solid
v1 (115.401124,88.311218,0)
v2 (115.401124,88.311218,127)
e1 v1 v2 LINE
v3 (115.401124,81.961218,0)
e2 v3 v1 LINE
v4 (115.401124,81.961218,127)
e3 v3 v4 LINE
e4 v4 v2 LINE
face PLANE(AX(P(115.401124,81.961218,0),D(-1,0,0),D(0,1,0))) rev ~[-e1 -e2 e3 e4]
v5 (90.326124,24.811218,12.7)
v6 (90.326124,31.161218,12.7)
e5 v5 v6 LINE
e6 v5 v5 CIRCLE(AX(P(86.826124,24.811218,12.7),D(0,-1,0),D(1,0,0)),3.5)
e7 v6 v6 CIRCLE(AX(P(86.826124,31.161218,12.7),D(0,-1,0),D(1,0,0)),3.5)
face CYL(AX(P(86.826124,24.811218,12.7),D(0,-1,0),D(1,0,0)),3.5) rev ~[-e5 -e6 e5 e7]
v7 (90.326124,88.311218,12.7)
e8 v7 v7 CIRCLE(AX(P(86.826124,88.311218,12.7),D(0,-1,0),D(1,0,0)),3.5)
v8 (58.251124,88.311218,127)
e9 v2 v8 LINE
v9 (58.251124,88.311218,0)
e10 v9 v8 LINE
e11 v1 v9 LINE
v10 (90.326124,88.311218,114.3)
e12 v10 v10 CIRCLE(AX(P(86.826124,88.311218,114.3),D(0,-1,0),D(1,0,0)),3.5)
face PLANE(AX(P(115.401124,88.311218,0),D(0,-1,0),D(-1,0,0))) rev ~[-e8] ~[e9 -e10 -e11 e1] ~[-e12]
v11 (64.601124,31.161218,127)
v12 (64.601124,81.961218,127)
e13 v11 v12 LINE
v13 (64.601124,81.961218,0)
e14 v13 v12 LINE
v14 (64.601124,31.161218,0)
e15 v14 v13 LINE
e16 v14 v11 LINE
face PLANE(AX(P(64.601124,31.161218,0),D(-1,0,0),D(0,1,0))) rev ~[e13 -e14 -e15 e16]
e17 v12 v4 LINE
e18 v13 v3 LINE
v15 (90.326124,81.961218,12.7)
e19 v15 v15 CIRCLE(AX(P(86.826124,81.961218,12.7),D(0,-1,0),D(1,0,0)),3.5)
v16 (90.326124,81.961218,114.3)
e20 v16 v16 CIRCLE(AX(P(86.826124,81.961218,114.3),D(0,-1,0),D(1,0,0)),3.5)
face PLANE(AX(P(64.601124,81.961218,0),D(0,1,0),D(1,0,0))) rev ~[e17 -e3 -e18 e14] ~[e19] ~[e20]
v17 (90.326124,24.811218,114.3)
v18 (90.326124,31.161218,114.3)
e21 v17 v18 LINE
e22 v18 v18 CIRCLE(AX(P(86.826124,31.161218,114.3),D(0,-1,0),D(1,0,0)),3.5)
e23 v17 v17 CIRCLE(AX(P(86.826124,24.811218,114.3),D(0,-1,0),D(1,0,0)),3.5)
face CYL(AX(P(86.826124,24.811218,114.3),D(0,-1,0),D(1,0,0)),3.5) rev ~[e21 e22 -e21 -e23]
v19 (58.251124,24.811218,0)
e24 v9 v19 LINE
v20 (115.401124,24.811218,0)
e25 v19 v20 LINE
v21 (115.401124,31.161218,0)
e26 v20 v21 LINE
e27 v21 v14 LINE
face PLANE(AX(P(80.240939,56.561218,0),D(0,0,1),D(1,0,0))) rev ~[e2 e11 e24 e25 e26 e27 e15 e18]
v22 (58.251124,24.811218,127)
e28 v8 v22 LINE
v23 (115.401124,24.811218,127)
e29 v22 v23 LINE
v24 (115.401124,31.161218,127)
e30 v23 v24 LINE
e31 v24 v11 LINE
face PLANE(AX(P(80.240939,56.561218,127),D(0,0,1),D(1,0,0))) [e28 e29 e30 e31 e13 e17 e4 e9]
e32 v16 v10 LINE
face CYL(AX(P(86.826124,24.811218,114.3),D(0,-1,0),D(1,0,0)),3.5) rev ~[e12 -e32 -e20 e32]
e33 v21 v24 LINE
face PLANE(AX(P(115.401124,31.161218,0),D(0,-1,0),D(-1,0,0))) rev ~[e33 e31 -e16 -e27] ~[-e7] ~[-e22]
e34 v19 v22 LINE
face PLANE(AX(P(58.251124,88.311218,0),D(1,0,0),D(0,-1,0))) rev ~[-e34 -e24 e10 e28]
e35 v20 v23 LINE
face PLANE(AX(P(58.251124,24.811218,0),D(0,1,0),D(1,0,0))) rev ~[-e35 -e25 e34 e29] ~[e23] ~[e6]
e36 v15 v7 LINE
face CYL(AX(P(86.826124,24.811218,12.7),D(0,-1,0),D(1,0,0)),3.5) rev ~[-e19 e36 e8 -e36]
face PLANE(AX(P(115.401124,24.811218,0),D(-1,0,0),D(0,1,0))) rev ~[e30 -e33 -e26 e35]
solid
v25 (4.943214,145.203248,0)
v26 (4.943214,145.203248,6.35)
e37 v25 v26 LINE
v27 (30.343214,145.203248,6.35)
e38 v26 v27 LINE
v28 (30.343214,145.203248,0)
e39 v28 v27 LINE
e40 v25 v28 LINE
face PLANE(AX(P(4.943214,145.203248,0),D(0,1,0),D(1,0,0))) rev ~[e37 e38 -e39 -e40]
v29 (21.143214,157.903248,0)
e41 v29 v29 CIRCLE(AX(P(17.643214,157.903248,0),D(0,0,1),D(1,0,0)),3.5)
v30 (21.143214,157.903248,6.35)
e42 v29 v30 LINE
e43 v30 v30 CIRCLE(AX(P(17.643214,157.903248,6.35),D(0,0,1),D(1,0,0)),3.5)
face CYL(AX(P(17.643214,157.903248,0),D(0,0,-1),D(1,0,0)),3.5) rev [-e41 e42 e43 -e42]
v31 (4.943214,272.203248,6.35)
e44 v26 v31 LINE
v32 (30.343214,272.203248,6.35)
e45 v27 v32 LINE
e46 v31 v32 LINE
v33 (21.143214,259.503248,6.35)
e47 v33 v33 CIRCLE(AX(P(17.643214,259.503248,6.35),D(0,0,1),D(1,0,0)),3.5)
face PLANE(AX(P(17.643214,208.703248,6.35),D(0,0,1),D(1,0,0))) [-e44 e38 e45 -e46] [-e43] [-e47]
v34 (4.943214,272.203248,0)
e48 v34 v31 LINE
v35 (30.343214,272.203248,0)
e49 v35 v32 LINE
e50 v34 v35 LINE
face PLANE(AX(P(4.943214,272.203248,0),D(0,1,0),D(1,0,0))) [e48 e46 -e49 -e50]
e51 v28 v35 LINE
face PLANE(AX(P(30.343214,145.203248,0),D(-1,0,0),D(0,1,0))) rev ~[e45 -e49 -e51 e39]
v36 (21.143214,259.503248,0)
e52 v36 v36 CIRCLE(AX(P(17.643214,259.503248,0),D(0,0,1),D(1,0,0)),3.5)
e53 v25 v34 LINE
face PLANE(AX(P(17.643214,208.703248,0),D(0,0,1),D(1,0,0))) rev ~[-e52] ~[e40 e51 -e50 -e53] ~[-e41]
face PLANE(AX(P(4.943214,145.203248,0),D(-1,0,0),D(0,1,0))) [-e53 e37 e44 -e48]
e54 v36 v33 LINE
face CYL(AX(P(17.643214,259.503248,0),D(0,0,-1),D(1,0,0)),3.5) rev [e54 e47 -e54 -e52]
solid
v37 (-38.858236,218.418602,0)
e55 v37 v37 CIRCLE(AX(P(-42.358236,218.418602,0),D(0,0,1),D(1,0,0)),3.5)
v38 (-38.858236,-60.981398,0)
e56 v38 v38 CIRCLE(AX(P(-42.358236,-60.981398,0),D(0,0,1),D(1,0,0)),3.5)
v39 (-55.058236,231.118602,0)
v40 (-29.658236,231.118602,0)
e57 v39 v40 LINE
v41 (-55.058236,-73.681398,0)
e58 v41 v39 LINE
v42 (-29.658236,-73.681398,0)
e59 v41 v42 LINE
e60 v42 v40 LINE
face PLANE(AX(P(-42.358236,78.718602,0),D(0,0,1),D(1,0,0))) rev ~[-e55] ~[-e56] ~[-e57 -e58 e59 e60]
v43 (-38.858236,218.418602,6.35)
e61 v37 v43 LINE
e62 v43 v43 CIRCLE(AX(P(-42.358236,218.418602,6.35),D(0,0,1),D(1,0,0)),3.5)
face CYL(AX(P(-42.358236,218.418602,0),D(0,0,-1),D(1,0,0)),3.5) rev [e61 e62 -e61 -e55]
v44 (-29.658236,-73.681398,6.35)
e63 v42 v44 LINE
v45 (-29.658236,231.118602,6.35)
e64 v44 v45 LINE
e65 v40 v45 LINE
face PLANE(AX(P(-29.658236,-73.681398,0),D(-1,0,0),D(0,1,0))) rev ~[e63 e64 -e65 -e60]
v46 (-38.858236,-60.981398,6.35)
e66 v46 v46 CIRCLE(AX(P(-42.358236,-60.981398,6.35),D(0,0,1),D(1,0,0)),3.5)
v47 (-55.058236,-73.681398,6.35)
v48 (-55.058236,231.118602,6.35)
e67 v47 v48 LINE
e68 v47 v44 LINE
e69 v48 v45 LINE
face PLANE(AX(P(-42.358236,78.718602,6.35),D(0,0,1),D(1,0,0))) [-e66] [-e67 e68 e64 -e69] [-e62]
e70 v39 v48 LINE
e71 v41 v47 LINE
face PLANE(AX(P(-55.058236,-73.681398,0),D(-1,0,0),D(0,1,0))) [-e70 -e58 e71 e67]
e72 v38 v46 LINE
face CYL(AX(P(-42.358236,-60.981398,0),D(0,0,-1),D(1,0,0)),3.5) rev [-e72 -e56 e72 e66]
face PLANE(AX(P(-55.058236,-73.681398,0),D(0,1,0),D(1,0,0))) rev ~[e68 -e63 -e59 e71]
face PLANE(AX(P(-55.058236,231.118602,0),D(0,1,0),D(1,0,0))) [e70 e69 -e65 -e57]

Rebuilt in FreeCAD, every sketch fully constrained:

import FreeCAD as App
import Part
import Sketcher
from FreeCAD import Vector
Q = App.Units.Quantity


def add_polygon(sketch, points):
    """Adds a closed chain of lines whose ends are joined by coincident constraints."""
    first, n = sketch.GeometryCount, len(points)
    for a, b in zip(points, points[1:] + points[:1]):
        sketch.addGeometry(Part.LineSegment(App.Vector(*a, 0), App.Vector(*b, 0)), False)
    for i in range(n):
        sketch.addConstraint(Sketcher.Constraint("Coincident", first + i, 2, first + (i + 1) % n, 1))

doc = App.newDocument("Part")
body = doc.addObject("PartDesign::Body", "Body")
body.AllowCompound = True

sketch1 = body.newObject("Sketcher::SketchObject", "Sketch")
sketch1.AttachmentSupport = (doc.getObject("XY_Plane"), [""])
sketch1.MapMode = "FlatFace"
add_polygon(sketch1, [(-55.058236, 231.118602), (-55.058236, -73.681398), (-29.658236, -73.681398), (-29.658236, 231.118602)])
sketch1.addGeometry(Part.Circle(Vector(-42.358236, -60.981398, 0), Vector(0, 0, 1), 3.5), False)
sketch1.addGeometry(Part.Circle(Vector(-42.358236, 218.418602, 0), Vector(0, 0, 1), 3.5), False)
add_polygon(sketch1, [(4.943214, 272.203248), (4.943214, 145.203248), (30.343214, 145.203248), (30.343214, 272.203248)])
sketch1.addGeometry(Part.Circle(Vector(17.643214, 157.903248, 0), Vector(0, 0, 1), 3.5), False)
sketch1.addGeometry(Part.Circle(Vector(17.643214, 259.503248, 0), Vector(0, 0, 1), 3.5), False)
sketch1.addConstraint([
    Sketcher.Constraint("Vertical", 0),
    Sketcher.Constraint("Horizontal", 1),
    Sketcher.Constraint("Vertical", 2),
    Sketcher.Constraint("Horizontal", 3),
    Sketcher.Constraint("Vertical", 6),
    Sketcher.Constraint("Horizontal", 7),
    Sketcher.Constraint("Vertical", 8),
    Sketcher.Constraint("Horizontal", 9),
    Sketcher.Constraint("Equal", 4, 5),
    Sketcher.Constraint("Equal", 5, 10),
    Sketcher.Constraint("Equal", 10, 11),
    Sketcher.Constraint("Vertical", 4, 3, 5, 3),
    Sketcher.Constraint("Vertical", 10, 3, 11, 3),
    Sketcher.Constraint("Equal", 3, 7),
    Sketcher.Constraint("DistanceX", 1, 1, 1, 2, Q("1 in")),
    Sketcher.Constraint("DistanceY", 0, 2, 0, 1, Q("12 in")),
    Sketcher.Constraint("DistanceY", 6, 2, 6, 1, Q("5 in")),
    Sketcher.Constraint("DistanceY", 4, 3, 5, 3, Q("11 in")),
    Sketcher.Constraint("DistanceY", 10, 3, 11, 3, Q("4 in")),
    Sketcher.Constraint("DistanceX", 0, 2, 4, 3, Q("0.5 in")),
    Sketcher.Constraint("DistanceY", 0, 2, 4, 3, Q("0.5 in")),
    Sketcher.Constraint("DistanceX", 6, 2, 10, 3, Q("0.5 in")),
    Sketcher.Constraint("DistanceY", 6, 2, 10, 3, Q("0.5 in")),
    Sketcher.Constraint("Diameter", 4, Q("7 mm")),
    Sketcher.Constraint("DistanceY", -1, 1, 5, 3, Q("218.418602 mm")),
    Sketcher.Constraint("DistanceY", -1, 1, 11, 3, Q("259.503248 mm")),
    Sketcher.Constraint("DistanceX", 5, 3, 10, 3, Q("60.00145 mm")),
    Sketcher.Constraint("DistanceX", 4, 3, -1, 1, Q("42.358236 mm")),
])
pad1 = body.newObject("PartDesign::Pad", "Pad")
pad1.Profile = sketch1
pad1.Length = Q("0.25 in")
body2 = doc.addObject("PartDesign::Body", "Body001")

sketch2 = body2.newObject("Sketcher::SketchObject", "Sketch001")
sketch2.AttachmentSupport = (doc.getObject("XY_Plane001"), [""])
sketch2.MapMode = "FlatFace"
add_polygon(sketch2, [(115.401124, 88.311218), (58.251124, 88.311218), (58.251124, 24.811218), (115.401124, 24.811218), (115.401124, 31.161218), (64.601124, 31.161218), (64.601124, 81.961218), (115.401124, 81.961218)])
sketch2.addConstraint([
    Sketcher.Constraint("Horizontal", 0),
    Sketcher.Constraint("Vertical", 1),
    Sketcher.Constraint("Horizontal", 2),
    Sketcher.Constraint("Vertical", 3),
    Sketcher.Constraint("Horizontal", 4),
    Sketcher.Constraint("Vertical", 5),
    Sketcher.Constraint("Horizontal", 6),
    Sketcher.Constraint("Vertical", 7),
    Sketcher.Constraint("Vertical", 3, 2, 6, 2),
    Sketcher.Constraint("Equal", 6, 5),
    Sketcher.Constraint("Equal", 3, 7),
    Sketcher.Constraint("DistanceX", 4, 2, 4, 1, Q("2 in")),
    Sketcher.Constraint("DistanceY", 1, 2, 1, 1, Q("2.5 in")),
    Sketcher.Constraint("DistanceX", 0, 2, 0, 1, Q("2.25 in")),
    Sketcher.Constraint("DistanceY", -1, 1, 1, 2, Q("24.811218 mm")),
    Sketcher.Constraint("DistanceX", -1, 1, 0, 2, Q("58.251124 mm")),
])
pad2 = body2.newObject("PartDesign::Pad", "Pad001")
pad2.Profile = sketch2
pad2.Length = Q("5 in")

sketch3 = body2.newObject("Sketcher::SketchObject", "Sketch002")
sketch3.AttachmentSupport = (doc.getObject("XZ_Plane001"), [""])
sketch3.MapMode = "FlatFace"
sketch3.AttachmentOffset = App.Placement(Vector(0, 0, -24.811218), App.Rotation())
sketch3.addGeometry([
    Part.Circle(Vector(86.826124, 114.3, 0), Vector(0, 0, 1), 3.5),
    Part.Circle(Vector(86.826124, 12.7, 0), Vector(0, 0, 1), 3.5),
], False)
sketch3.addConstraint([
    Sketcher.Constraint("Equal", 0, 1),
    Sketcher.Constraint("Vertical", 0, 3, 1, 3),
    Sketcher.Constraint("DistanceY", 1, 3, 0, 3, Q("4 in")),
    Sketcher.Constraint("DistanceY", -1, 1, 0, 3, Q("4.5 in")),
    Sketcher.Constraint("Diameter", 0, Q("7 mm")),
    Sketcher.Constraint("DistanceX", -1, 1, 0, 3, Q("86.826124 mm")),
])
pocket1 = body2.newObject("PartDesign::Pocket", "Pocket")
pocket1.Profile = sketch3
pocket1.Length = Q("3.6 in")

doc.recompute()
